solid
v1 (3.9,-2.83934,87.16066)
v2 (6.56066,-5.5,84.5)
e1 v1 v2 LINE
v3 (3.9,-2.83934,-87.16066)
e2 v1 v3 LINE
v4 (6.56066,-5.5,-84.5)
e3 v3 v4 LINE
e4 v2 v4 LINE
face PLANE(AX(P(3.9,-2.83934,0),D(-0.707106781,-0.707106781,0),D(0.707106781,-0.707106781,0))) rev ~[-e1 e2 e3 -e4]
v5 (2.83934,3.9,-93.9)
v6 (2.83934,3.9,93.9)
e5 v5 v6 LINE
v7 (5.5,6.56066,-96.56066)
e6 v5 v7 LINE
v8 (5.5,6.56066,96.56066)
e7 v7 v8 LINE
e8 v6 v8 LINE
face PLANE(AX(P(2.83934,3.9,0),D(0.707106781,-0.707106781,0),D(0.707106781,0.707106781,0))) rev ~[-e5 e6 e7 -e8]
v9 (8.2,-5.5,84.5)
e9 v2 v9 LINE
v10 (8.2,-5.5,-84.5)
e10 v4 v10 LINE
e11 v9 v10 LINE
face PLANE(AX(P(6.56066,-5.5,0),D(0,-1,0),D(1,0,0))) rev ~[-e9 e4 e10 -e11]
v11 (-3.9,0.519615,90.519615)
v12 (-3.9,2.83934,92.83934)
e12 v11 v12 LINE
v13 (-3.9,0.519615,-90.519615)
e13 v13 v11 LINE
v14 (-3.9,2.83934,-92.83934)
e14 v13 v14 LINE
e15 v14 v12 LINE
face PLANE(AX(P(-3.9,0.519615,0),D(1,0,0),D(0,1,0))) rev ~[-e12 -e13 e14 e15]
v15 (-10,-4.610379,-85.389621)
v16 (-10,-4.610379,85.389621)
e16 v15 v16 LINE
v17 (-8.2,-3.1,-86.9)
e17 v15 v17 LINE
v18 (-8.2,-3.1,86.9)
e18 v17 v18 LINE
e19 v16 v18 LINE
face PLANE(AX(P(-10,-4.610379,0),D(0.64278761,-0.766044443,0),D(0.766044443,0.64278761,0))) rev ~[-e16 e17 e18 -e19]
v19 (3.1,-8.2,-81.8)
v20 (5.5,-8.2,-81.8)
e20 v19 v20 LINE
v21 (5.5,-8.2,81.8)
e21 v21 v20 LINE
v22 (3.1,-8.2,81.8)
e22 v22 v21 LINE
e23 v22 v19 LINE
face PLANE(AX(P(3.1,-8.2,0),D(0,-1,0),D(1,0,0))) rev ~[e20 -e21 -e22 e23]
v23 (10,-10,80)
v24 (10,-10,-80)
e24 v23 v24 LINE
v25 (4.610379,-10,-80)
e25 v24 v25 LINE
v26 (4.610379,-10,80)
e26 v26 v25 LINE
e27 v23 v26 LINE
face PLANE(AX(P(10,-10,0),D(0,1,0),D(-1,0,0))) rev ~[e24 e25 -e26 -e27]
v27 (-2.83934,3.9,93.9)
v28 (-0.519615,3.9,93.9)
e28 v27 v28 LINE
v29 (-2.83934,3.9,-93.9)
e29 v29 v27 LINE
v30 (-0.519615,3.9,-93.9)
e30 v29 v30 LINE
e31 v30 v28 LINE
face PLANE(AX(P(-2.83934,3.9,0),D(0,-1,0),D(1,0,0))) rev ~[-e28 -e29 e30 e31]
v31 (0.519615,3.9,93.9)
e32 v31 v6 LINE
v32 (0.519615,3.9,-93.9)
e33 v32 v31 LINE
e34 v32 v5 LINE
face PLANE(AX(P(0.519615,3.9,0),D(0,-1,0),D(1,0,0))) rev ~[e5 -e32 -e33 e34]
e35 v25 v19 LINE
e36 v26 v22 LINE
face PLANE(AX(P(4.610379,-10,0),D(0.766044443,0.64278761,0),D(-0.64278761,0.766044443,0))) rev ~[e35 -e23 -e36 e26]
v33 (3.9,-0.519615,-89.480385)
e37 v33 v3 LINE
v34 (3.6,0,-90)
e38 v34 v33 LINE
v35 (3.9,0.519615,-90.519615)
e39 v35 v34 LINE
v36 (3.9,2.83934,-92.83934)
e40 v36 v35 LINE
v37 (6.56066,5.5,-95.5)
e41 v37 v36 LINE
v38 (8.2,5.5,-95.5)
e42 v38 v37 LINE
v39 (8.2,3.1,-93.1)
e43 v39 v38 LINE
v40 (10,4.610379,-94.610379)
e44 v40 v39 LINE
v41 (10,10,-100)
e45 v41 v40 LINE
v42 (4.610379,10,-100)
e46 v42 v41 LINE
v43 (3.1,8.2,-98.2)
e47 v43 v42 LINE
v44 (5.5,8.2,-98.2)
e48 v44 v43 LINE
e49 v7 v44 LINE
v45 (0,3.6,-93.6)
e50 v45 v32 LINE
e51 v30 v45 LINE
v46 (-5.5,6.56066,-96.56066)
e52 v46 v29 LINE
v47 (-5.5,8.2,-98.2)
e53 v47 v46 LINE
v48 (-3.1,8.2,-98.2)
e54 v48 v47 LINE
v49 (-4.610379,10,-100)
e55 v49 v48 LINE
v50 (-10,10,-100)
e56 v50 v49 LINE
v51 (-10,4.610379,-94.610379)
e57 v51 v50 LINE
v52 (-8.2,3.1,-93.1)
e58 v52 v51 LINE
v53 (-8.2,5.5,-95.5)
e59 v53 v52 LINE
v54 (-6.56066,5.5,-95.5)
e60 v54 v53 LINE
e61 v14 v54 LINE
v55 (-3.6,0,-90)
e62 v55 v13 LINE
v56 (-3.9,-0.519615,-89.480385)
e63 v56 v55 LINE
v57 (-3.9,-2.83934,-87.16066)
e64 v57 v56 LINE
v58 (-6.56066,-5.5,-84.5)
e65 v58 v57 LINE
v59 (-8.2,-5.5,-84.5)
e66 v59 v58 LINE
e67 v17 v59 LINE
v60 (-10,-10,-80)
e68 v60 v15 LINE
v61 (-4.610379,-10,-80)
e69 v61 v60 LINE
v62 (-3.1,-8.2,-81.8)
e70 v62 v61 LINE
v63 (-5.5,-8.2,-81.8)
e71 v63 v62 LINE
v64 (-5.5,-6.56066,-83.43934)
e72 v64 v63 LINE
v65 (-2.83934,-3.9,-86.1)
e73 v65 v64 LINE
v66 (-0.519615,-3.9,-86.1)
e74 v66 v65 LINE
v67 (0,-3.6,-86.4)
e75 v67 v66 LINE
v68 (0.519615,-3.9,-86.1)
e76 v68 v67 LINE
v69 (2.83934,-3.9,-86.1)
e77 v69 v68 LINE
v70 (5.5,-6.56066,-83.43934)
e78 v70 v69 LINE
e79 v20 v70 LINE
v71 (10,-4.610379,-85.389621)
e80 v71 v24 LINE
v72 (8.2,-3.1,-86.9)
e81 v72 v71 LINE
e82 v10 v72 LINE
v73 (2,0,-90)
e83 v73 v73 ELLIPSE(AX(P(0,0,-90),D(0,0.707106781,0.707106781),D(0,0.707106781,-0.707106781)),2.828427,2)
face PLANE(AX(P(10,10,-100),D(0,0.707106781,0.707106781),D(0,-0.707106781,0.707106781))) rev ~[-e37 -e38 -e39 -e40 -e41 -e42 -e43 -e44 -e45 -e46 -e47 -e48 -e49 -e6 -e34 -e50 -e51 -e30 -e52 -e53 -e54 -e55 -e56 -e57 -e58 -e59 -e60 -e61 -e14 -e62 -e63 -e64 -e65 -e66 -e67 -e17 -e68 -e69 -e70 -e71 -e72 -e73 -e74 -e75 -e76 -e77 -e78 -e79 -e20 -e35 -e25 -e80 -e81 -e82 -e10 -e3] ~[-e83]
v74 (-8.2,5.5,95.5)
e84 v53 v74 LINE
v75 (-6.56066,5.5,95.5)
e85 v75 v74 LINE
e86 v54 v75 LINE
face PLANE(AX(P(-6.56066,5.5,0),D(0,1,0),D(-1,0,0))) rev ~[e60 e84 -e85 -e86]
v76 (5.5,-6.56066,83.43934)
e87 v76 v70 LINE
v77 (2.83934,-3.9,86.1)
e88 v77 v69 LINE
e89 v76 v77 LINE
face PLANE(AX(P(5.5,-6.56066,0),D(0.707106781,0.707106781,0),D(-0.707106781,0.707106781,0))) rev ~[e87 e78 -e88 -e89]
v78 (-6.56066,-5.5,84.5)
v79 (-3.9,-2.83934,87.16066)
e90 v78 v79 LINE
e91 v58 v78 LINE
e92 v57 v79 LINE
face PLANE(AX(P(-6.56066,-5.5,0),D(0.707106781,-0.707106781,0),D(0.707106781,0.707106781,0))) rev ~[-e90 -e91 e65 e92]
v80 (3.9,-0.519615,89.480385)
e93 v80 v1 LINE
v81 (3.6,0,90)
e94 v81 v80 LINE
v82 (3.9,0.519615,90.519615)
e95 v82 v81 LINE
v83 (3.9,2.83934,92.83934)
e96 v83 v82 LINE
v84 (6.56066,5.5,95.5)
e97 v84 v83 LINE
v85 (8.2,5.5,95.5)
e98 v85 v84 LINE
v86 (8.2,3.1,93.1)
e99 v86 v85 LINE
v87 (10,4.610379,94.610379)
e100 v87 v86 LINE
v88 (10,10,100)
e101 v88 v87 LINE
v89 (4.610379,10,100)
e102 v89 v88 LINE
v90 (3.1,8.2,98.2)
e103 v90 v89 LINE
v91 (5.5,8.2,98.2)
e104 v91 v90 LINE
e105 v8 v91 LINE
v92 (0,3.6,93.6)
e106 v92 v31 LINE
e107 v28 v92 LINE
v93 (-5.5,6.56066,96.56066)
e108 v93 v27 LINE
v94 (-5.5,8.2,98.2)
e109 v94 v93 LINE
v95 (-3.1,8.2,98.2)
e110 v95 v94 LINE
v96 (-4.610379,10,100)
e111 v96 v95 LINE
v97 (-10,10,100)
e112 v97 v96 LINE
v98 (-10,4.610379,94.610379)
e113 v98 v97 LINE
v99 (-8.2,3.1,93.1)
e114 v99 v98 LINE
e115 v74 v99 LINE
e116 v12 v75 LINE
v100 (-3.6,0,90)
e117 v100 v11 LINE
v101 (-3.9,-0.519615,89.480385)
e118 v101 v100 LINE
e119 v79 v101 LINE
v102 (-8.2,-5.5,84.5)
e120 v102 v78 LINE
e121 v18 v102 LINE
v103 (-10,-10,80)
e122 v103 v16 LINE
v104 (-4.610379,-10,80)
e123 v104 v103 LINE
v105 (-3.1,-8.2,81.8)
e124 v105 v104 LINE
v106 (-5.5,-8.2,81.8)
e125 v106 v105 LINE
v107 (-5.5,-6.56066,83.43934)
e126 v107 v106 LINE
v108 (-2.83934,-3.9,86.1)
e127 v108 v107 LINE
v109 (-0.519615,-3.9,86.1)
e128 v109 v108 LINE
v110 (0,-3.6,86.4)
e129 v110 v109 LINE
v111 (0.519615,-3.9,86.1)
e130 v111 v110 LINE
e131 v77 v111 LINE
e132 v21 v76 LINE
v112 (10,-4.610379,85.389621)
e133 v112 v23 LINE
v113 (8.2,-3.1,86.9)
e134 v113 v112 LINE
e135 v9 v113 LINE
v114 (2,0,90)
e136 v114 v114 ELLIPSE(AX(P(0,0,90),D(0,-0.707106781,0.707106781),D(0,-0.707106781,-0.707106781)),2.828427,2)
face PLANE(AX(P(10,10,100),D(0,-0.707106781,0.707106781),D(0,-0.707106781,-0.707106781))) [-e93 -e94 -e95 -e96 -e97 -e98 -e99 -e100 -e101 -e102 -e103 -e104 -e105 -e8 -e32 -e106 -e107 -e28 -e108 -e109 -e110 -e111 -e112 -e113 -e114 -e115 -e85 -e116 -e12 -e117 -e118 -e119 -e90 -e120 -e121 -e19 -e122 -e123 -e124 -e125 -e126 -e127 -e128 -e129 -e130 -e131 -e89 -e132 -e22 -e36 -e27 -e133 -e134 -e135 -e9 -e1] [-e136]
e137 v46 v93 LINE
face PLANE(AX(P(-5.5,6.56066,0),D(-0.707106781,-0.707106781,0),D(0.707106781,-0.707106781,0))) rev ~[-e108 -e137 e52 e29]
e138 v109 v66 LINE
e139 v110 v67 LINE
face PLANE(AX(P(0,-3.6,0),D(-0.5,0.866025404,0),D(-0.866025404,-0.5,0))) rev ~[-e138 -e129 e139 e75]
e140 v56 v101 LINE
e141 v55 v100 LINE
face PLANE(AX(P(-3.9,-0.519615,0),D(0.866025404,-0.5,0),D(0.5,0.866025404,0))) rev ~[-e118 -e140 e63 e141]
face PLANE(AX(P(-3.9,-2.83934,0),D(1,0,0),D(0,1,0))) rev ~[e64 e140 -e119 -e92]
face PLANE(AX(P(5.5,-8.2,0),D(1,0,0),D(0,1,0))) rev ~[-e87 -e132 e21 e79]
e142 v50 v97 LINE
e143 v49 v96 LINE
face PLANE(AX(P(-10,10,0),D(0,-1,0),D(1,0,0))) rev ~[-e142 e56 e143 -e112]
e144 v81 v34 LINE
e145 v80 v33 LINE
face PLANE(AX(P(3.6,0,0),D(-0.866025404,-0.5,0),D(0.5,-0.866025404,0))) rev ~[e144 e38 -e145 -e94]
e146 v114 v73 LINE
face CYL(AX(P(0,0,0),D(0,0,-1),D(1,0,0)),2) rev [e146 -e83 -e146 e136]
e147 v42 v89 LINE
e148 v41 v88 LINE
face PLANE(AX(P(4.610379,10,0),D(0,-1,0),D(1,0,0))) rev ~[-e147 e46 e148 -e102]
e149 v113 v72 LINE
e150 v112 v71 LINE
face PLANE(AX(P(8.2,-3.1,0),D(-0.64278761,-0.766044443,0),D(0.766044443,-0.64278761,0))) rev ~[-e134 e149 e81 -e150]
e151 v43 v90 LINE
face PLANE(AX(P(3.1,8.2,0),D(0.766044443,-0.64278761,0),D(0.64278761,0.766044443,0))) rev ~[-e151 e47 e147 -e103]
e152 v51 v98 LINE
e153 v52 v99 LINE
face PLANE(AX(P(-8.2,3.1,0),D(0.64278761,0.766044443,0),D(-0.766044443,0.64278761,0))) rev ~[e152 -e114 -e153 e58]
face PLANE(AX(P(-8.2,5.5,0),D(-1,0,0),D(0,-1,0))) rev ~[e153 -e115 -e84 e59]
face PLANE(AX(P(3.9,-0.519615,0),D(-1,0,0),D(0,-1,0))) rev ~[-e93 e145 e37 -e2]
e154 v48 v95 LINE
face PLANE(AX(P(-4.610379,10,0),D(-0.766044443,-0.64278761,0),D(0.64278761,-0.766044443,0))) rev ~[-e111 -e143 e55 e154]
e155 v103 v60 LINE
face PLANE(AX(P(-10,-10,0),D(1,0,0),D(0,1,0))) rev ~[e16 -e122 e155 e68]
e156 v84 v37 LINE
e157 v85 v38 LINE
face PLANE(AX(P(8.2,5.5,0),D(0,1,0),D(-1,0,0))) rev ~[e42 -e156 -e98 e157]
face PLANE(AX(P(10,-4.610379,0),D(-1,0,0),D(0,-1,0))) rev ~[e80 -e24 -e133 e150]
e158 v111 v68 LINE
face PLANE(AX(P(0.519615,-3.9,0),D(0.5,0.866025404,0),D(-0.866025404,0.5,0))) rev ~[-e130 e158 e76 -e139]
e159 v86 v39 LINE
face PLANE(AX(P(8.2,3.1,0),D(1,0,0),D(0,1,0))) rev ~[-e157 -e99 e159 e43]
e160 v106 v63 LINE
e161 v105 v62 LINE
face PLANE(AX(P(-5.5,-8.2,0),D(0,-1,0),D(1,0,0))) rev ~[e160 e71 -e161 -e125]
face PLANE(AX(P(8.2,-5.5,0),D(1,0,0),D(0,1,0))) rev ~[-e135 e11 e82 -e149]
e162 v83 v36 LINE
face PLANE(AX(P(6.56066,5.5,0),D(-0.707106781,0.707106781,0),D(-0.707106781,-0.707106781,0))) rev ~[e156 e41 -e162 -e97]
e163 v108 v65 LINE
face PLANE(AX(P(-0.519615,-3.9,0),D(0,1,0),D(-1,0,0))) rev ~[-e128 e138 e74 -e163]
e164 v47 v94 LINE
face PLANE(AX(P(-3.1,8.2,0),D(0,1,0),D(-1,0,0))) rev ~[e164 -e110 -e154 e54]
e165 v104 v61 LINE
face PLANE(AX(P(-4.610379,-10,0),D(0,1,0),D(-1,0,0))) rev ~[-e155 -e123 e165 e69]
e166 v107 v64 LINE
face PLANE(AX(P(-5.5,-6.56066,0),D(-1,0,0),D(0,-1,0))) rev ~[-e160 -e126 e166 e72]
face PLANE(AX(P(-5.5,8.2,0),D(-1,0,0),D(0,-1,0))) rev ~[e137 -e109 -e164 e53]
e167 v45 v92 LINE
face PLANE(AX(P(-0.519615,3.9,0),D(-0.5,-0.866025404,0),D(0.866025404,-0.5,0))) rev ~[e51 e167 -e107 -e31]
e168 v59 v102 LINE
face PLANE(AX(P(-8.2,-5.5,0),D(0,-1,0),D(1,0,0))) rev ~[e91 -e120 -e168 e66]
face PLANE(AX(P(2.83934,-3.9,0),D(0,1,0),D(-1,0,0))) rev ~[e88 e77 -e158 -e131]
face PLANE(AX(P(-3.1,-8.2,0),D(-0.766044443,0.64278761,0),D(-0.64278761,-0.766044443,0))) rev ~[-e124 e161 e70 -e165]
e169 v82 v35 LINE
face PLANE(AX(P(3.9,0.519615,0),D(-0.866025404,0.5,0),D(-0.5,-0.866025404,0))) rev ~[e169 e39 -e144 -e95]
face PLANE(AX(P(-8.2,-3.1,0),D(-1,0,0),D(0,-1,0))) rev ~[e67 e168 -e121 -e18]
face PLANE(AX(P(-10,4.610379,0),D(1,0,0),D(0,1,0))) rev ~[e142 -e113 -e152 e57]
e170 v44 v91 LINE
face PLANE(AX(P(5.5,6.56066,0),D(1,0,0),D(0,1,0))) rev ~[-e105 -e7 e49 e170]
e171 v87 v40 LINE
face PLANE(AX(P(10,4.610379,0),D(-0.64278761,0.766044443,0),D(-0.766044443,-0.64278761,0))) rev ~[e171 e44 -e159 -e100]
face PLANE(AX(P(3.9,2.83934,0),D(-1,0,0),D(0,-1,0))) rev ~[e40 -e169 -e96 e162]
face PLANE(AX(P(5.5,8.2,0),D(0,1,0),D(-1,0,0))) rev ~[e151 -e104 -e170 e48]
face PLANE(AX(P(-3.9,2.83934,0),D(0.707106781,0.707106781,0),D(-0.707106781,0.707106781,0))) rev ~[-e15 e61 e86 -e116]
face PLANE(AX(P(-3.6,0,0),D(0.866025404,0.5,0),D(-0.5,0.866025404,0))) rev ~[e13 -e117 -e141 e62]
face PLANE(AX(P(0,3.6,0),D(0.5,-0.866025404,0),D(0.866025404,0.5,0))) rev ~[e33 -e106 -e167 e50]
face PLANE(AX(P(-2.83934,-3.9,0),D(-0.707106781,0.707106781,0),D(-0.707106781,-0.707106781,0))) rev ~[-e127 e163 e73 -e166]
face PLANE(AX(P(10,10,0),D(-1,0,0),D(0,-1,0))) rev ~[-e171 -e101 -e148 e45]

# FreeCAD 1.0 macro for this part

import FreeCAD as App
import Part
import Sketcher
Q = App.Units.Quantity


def add_polygon(sketch, points):
    """Adds a closed chain of lines whose ends are joined by coincident constraints."""
    first, n = sketch.GeometryCount, len(points)
    for a, b in zip(points, points[1:] + points[:1]):
        sketch.addGeometry(Part.LineSegment(App.Vector(*a, 0), App.Vector(*b, 0)), False)
    for i in range(n):
        sketch.addConstraint(Sketcher.Constraint("Coincident", first + i, 2, first + (i + 1) % n, 1))

doc = App.newDocument("Part")
params = doc.addObject("Spreadsheet::Sheet", "Params")
for row, (alias, value) in enumerate([
    ("sketch1_diameter", "4 mm"),
    ("sketch1_width", "2.4 mm"),
    ("sketch1_length", "0.6 mm"),
    ("pad1_length", "200 mm"),
    ("sketch2_width", "20 mm"),
    ("pocket1_length", "20 mm"),
    ("sketch3_width", "20 mm"),
    ("pocket2_length", "20 mm"),
], start=1):
    params.set(f"A{row}", alias)
    params.set(f"B{row}", "=" + value)
    params.setAlias(f"B{row}", alias)

body = doc.addObject("PartDesign::Body", "Body")

sketch1 = body.newObject("Sketcher::SketchObject", "Sketch")
sketch1.AttachmentSupport = (doc.getObject("XY_Plane"), [""])
sketch1.MapMode = "FlatFace"
add_polygon(sketch1, [(10, 4.6), (10, 10), (4.6, 10), (3.1, 8.2), (5.5, 8.2), (5.5, 6.6), (2.8, 3.9), (0.5, 3.9), (0, 3.6), (-0.5, 3.9), (-2.8, 3.9), (-5.5, 6.6), (-5.5, 8.2), (-3.1, 8.2), (-4.6, 10), (-10, 10), (-10, 4.6), (-8.2, 3.1), (-8.2, 5.5), (-6.6, 5.5), (-3.9, 2.8), (-3.9, 0.5), (-3.6, 0), (-3.9, -0.5), (-3.9, -2.8), (-6.6, -5.5), (-8.2, -5.5), (-8.2, -3.1), (-10, -4.6), (-10, -10), (-4.6, -10), (-3.1, -8.2), (-5.5, -8.2), (-5.5, -6.6), (-2.8, -3.9), (-0.5, -3.9), (0, -3.6), (0.5, -3.9), (2.8, -3.9), (5.5, -6.6), (5.5, -8.2), (3.1, -8.2), (4.6, -10), (10, -10), (10, -4.6), (8.2, -3.1), (8.2, -5.5), (6.6, -5.5), (3.9, -2.8), (3.9, -0.5), (3.6, 0), (3.9, 0.5), (3.9, 2.8), (6.6, 5.5), (8.2, 5.5), (8.2, 3.1)])
sketch1.addGeometry(Part.Circle(App.Vector(0, 0, 0), App.Vector(0, 0, 1), 2), False)
sketch1.addConstraint([
    Sketcher.Constraint("Vertical", 0),
    Sketcher.Constraint("Horizontal", 1),
    Sketcher.Constraint("Horizontal", 3),
    Sketcher.Constraint("Vertical", 4),
    Sketcher.Constraint("Horizontal", 6),
    Sketcher.Constraint("Horizontal", 9),
    Sketcher.Constraint("Vertical", 11),
    Sketcher.Constraint("Horizontal", 12),
    Sketcher.Constraint("Horizontal", 14),
    Sketcher.Constraint("Vertical", 15),
    Sketcher.Constraint("Vertical", 17),
    Sketcher.Constraint("Horizontal", 18),
    Sketcher.Constraint("Vertical", 20),
    Sketcher.Constraint("Vertical", 23),
    Sketcher.Constraint("Horizontal", 25),
    Sketcher.Constraint("Vertical", 26),
    Sketcher.Constraint("Vertical", 28),
    Sketcher.Constraint("Horizontal", 29),
    Sketcher.Constraint("Horizontal", 31),
    Sketcher.Constraint("Vertical", 32),
    Sketcher.Constraint("Horizontal", 34),
    Sketcher.Constraint("Horizontal", 37),
    Sketcher.Constraint("Vertical", 39),
    Sketcher.Constraint("Horizontal", 40),
    Sketcher.Constraint("Horizontal", 42),
    Sketcher.Constraint("Vertical", 43),
    Sketcher.Constraint("Vertical", 45),
    Sketcher.Constraint("Horizontal", 46),
    Sketcher.Constraint("Vertical", 48),
    Sketcher.Constraint("Vertical", 51),
    Sketcher.Constraint("Horizontal", 53),
    Sketcher.Constraint("Vertical", 54),
    Sketcher.Constraint("Coincident", 56, 3, -1, 1),
    Sketcher.Constraint("Symmetric", 0, 2, 28, 2, -1, 1),
    Sketcher.Constraint("Symmetric", 2, 2, 30, 2, -1, 1),
    Sketcher.Constraint("Symmetric", 4, 2, 32, 2, -1, 1),
    Sketcher.Constraint("Symmetric", 5, 2, 33, 2, -1, 1),
    Sketcher.Constraint("Symmetric", 7, 2, 35, 2, -1, 1),
    Sketcher.Constraint("Symmetric", 8, 2, 36, 2, -1, 1),
    Sketcher.Constraint("Symmetric", 10, 2, 38, 2, -1, 1),
    Sketcher.Constraint("Symmetric", 12, 2, 40, 2, -1, 1),
    Sketcher.Constraint("Symmetric", 13, 2, 41, 2, -1, 1),
    Sketcher.Constraint("Symmetric", 15, 2, 43, 2, -1, 1),
    Sketcher.Constraint("Symmetric", 16, 2, 44, 2, -1, 1),
    Sketcher.Constraint("Symmetric", 18, 2, 46, 2, -1, 1),
    Sketcher.Constraint("Symmetric", 19, 2, 47, 2, -1, 1),
    Sketcher.Constraint("Symmetric", 21, 2, 49, 2, -1, 1),
    Sketcher.Constraint("Symmetric", 22, 2, 50, 2, -1, 1),
    Sketcher.Constraint("Symmetric", 24, 2, 52, 2, -1, 1),
    Sketcher.Constraint("Symmetric", 26, 2, 54, 2, -1, 1),
    Sketcher.Constraint("Symmetric", 6, 2, 8, 2, -2),
    Sketcher.Constraint("Symmetric", 4, 2, 10, 2, -2),
    Sketcher.Constraint("Symmetric", 2, 2, 12, 2, -2),
    Sketcher.Constraint("Symmetric", 1, 2, 13, 2, -2),
    Sketcher.Constraint("Symmetric", 27, 2, 43, 2, -2),
    Sketcher.Constraint("Symmetric", 26, 2, 44, 2, -2),
    Sketcher.Constraint("Symmetric", 24, 2, 46, 2, -2),
    Sketcher.Constraint("Symmetric", 23, 2, 47, 2, -2),
    Sketcher.Constraint("PointOnObject", 7, 2, -2),
    Sketcher.Constraint("PointOnObject", 21, 2, -1),
    Sketcher.Constraint("Perpendicular", 5, 10),
    Sketcher.Constraint("Perpendicular", 2, 16),
    Sketcher.Constraint("Parallel", 10, 19),
    Sketcher.Constraint("Perpendicular", 7, 21),
    Sketcher.Constraint("Perpendicular", 8, 22),
    Sketcher.Constraint("Perpendicular", 19, 24),
    Sketcher.Constraint("Perpendicular", 16, 30),
    Sketcher.Constraint("Perpendicular", 21, 35),
    Sketcher.Constraint("Perpendicular", 33, 38),
    Sketcher.Constraint("Perpendicular", 35, 49),
    Sketcher.Constraint("Perpendicular", 47, 52),
    Sketcher.Constraint("Perpendicular", 41, 55),
    Sketcher.Constraint("Equal", 42, 0),
    Sketcher.Constraint("Equal", 53, 4),
    Sketcher.Constraint("Equal", 40, 17),
    Sketcher.Constraint("Equal", 37, 20),
    Sketcher.Constraint("Equal", 13, 16),
    Sketcher.Constraint("Equal", 10, 19),
    Sketcher.Constraint("Equal", 8, 21),
    Sketcher.Constraint("Diameter", 56, 4.0),
    Sketcher.Constraint("Angle", 2, Q("-130 deg")),
    Sketcher.Constraint("Angle", 7, Q("-150 deg")),
    Sketcher.Constraint("DistanceX", 3, 1, 3, 2, 2.4),
    Sketcher.Constraint("DistanceX", -1, 1, 0, 2, 10.0),
    Sketcher.Constraint("Distance", 7, 0.6),
    Sketcher.Constraint("DistanceX", -1, 1, 2, 2, 3.1),
    Sketcher.Constraint("DistanceY", -1, 1, 2, 2, 8.2),
    Sketcher.Constraint("DistanceY", -1, 1, 5, 2, 3.9),
    Sketcher.Constraint("DistanceX", 18, 1, 18, 2, 1.63934),
])
sketch1.setExpression("Constraints[135]", "Params.sketch1_diameter")
sketch1.setExpression("Constraints[138]", "Params.sketch1_width")
sketch1.setExpression("Constraints[140]", "Params.sketch1_length")
pad1 = body.newObject("PartDesign::Pad", "Pad")
pad1.Profile = sketch1
pad1.setExpression("Length", "Params.pad1_length")
pad1.Midplane = True

sketch2 = body.newObject("Sketcher::SketchObject", "Sketch001")
sketch2.AttachmentSupport = (doc.getObject("YZ_Plane"), [""])
sketch2.MapMode = "FlatFace"
sketch2.AttachmentOffset = App.Placement(App.Vector(0, 0, 10), App.Rotation())
add_polygon(sketch2, [(10, -100), (-10, -80), (-10, -100)])
sketch2.addConstraint([
    Sketcher.Constraint("Vertical", 1),
    Sketcher.Constraint("Horizontal", 2),
    Sketcher.Constraint("Equal", 2, 1),
    Sketcher.Constraint("DistanceX", 2, 1, 2, 2, 20.0),
    Sketcher.Constraint("DistanceX", 0, 2, -1, 1, 10.0),
    Sketcher.Constraint("DistanceY", 0, 2, -1, 1, 80.0),
])
sketch2.setExpression("Constraints[6]", "Params.sketch2_width")
pocket1 = body.newObject("PartDesign::Pocket", "Pocket")
pocket1.Profile = sketch2
pocket1.setExpression("Length", "Params.pocket1_length")

sketch3 = body.newObject("Sketcher::SketchObject", "Sketch002")
sketch3.AttachmentSupport = (doc.getObject("YZ_Plane"), [""])
sketch3.MapMode = "FlatFace"
sketch3.AttachmentOffset = App.Placement(App.Vector(0, 0, 10), App.Rotation())
add_polygon(sketch3, [(-10, 80), (10, 100), (-10, 100)])
sketch3.addConstraint([
    Sketcher.Constraint("Horizontal", 1),
    Sketcher.Constraint("Vertical", 2),
    Sketcher.Constraint("Equal", 1, 2),
    Sketcher.Constraint("DistanceX", 1, 2, 1, 1, 20.0),
    Sketcher.Constraint("DistanceX", -1, 1, 0, 2, 10.0),
    Sketcher.Constraint("DistanceY", -1, 1, 0, 2, 100.0),
])
sketch3.setExpression("Constraints[6]", "Params.sketch3_width")
pocket2 = body.newObject("PartDesign::Pocket", "Pocket001")
pocket2.Profile = sketch3
pocket2.setExpression("Length", "Params.pocket2_length")

doc.recompute()
